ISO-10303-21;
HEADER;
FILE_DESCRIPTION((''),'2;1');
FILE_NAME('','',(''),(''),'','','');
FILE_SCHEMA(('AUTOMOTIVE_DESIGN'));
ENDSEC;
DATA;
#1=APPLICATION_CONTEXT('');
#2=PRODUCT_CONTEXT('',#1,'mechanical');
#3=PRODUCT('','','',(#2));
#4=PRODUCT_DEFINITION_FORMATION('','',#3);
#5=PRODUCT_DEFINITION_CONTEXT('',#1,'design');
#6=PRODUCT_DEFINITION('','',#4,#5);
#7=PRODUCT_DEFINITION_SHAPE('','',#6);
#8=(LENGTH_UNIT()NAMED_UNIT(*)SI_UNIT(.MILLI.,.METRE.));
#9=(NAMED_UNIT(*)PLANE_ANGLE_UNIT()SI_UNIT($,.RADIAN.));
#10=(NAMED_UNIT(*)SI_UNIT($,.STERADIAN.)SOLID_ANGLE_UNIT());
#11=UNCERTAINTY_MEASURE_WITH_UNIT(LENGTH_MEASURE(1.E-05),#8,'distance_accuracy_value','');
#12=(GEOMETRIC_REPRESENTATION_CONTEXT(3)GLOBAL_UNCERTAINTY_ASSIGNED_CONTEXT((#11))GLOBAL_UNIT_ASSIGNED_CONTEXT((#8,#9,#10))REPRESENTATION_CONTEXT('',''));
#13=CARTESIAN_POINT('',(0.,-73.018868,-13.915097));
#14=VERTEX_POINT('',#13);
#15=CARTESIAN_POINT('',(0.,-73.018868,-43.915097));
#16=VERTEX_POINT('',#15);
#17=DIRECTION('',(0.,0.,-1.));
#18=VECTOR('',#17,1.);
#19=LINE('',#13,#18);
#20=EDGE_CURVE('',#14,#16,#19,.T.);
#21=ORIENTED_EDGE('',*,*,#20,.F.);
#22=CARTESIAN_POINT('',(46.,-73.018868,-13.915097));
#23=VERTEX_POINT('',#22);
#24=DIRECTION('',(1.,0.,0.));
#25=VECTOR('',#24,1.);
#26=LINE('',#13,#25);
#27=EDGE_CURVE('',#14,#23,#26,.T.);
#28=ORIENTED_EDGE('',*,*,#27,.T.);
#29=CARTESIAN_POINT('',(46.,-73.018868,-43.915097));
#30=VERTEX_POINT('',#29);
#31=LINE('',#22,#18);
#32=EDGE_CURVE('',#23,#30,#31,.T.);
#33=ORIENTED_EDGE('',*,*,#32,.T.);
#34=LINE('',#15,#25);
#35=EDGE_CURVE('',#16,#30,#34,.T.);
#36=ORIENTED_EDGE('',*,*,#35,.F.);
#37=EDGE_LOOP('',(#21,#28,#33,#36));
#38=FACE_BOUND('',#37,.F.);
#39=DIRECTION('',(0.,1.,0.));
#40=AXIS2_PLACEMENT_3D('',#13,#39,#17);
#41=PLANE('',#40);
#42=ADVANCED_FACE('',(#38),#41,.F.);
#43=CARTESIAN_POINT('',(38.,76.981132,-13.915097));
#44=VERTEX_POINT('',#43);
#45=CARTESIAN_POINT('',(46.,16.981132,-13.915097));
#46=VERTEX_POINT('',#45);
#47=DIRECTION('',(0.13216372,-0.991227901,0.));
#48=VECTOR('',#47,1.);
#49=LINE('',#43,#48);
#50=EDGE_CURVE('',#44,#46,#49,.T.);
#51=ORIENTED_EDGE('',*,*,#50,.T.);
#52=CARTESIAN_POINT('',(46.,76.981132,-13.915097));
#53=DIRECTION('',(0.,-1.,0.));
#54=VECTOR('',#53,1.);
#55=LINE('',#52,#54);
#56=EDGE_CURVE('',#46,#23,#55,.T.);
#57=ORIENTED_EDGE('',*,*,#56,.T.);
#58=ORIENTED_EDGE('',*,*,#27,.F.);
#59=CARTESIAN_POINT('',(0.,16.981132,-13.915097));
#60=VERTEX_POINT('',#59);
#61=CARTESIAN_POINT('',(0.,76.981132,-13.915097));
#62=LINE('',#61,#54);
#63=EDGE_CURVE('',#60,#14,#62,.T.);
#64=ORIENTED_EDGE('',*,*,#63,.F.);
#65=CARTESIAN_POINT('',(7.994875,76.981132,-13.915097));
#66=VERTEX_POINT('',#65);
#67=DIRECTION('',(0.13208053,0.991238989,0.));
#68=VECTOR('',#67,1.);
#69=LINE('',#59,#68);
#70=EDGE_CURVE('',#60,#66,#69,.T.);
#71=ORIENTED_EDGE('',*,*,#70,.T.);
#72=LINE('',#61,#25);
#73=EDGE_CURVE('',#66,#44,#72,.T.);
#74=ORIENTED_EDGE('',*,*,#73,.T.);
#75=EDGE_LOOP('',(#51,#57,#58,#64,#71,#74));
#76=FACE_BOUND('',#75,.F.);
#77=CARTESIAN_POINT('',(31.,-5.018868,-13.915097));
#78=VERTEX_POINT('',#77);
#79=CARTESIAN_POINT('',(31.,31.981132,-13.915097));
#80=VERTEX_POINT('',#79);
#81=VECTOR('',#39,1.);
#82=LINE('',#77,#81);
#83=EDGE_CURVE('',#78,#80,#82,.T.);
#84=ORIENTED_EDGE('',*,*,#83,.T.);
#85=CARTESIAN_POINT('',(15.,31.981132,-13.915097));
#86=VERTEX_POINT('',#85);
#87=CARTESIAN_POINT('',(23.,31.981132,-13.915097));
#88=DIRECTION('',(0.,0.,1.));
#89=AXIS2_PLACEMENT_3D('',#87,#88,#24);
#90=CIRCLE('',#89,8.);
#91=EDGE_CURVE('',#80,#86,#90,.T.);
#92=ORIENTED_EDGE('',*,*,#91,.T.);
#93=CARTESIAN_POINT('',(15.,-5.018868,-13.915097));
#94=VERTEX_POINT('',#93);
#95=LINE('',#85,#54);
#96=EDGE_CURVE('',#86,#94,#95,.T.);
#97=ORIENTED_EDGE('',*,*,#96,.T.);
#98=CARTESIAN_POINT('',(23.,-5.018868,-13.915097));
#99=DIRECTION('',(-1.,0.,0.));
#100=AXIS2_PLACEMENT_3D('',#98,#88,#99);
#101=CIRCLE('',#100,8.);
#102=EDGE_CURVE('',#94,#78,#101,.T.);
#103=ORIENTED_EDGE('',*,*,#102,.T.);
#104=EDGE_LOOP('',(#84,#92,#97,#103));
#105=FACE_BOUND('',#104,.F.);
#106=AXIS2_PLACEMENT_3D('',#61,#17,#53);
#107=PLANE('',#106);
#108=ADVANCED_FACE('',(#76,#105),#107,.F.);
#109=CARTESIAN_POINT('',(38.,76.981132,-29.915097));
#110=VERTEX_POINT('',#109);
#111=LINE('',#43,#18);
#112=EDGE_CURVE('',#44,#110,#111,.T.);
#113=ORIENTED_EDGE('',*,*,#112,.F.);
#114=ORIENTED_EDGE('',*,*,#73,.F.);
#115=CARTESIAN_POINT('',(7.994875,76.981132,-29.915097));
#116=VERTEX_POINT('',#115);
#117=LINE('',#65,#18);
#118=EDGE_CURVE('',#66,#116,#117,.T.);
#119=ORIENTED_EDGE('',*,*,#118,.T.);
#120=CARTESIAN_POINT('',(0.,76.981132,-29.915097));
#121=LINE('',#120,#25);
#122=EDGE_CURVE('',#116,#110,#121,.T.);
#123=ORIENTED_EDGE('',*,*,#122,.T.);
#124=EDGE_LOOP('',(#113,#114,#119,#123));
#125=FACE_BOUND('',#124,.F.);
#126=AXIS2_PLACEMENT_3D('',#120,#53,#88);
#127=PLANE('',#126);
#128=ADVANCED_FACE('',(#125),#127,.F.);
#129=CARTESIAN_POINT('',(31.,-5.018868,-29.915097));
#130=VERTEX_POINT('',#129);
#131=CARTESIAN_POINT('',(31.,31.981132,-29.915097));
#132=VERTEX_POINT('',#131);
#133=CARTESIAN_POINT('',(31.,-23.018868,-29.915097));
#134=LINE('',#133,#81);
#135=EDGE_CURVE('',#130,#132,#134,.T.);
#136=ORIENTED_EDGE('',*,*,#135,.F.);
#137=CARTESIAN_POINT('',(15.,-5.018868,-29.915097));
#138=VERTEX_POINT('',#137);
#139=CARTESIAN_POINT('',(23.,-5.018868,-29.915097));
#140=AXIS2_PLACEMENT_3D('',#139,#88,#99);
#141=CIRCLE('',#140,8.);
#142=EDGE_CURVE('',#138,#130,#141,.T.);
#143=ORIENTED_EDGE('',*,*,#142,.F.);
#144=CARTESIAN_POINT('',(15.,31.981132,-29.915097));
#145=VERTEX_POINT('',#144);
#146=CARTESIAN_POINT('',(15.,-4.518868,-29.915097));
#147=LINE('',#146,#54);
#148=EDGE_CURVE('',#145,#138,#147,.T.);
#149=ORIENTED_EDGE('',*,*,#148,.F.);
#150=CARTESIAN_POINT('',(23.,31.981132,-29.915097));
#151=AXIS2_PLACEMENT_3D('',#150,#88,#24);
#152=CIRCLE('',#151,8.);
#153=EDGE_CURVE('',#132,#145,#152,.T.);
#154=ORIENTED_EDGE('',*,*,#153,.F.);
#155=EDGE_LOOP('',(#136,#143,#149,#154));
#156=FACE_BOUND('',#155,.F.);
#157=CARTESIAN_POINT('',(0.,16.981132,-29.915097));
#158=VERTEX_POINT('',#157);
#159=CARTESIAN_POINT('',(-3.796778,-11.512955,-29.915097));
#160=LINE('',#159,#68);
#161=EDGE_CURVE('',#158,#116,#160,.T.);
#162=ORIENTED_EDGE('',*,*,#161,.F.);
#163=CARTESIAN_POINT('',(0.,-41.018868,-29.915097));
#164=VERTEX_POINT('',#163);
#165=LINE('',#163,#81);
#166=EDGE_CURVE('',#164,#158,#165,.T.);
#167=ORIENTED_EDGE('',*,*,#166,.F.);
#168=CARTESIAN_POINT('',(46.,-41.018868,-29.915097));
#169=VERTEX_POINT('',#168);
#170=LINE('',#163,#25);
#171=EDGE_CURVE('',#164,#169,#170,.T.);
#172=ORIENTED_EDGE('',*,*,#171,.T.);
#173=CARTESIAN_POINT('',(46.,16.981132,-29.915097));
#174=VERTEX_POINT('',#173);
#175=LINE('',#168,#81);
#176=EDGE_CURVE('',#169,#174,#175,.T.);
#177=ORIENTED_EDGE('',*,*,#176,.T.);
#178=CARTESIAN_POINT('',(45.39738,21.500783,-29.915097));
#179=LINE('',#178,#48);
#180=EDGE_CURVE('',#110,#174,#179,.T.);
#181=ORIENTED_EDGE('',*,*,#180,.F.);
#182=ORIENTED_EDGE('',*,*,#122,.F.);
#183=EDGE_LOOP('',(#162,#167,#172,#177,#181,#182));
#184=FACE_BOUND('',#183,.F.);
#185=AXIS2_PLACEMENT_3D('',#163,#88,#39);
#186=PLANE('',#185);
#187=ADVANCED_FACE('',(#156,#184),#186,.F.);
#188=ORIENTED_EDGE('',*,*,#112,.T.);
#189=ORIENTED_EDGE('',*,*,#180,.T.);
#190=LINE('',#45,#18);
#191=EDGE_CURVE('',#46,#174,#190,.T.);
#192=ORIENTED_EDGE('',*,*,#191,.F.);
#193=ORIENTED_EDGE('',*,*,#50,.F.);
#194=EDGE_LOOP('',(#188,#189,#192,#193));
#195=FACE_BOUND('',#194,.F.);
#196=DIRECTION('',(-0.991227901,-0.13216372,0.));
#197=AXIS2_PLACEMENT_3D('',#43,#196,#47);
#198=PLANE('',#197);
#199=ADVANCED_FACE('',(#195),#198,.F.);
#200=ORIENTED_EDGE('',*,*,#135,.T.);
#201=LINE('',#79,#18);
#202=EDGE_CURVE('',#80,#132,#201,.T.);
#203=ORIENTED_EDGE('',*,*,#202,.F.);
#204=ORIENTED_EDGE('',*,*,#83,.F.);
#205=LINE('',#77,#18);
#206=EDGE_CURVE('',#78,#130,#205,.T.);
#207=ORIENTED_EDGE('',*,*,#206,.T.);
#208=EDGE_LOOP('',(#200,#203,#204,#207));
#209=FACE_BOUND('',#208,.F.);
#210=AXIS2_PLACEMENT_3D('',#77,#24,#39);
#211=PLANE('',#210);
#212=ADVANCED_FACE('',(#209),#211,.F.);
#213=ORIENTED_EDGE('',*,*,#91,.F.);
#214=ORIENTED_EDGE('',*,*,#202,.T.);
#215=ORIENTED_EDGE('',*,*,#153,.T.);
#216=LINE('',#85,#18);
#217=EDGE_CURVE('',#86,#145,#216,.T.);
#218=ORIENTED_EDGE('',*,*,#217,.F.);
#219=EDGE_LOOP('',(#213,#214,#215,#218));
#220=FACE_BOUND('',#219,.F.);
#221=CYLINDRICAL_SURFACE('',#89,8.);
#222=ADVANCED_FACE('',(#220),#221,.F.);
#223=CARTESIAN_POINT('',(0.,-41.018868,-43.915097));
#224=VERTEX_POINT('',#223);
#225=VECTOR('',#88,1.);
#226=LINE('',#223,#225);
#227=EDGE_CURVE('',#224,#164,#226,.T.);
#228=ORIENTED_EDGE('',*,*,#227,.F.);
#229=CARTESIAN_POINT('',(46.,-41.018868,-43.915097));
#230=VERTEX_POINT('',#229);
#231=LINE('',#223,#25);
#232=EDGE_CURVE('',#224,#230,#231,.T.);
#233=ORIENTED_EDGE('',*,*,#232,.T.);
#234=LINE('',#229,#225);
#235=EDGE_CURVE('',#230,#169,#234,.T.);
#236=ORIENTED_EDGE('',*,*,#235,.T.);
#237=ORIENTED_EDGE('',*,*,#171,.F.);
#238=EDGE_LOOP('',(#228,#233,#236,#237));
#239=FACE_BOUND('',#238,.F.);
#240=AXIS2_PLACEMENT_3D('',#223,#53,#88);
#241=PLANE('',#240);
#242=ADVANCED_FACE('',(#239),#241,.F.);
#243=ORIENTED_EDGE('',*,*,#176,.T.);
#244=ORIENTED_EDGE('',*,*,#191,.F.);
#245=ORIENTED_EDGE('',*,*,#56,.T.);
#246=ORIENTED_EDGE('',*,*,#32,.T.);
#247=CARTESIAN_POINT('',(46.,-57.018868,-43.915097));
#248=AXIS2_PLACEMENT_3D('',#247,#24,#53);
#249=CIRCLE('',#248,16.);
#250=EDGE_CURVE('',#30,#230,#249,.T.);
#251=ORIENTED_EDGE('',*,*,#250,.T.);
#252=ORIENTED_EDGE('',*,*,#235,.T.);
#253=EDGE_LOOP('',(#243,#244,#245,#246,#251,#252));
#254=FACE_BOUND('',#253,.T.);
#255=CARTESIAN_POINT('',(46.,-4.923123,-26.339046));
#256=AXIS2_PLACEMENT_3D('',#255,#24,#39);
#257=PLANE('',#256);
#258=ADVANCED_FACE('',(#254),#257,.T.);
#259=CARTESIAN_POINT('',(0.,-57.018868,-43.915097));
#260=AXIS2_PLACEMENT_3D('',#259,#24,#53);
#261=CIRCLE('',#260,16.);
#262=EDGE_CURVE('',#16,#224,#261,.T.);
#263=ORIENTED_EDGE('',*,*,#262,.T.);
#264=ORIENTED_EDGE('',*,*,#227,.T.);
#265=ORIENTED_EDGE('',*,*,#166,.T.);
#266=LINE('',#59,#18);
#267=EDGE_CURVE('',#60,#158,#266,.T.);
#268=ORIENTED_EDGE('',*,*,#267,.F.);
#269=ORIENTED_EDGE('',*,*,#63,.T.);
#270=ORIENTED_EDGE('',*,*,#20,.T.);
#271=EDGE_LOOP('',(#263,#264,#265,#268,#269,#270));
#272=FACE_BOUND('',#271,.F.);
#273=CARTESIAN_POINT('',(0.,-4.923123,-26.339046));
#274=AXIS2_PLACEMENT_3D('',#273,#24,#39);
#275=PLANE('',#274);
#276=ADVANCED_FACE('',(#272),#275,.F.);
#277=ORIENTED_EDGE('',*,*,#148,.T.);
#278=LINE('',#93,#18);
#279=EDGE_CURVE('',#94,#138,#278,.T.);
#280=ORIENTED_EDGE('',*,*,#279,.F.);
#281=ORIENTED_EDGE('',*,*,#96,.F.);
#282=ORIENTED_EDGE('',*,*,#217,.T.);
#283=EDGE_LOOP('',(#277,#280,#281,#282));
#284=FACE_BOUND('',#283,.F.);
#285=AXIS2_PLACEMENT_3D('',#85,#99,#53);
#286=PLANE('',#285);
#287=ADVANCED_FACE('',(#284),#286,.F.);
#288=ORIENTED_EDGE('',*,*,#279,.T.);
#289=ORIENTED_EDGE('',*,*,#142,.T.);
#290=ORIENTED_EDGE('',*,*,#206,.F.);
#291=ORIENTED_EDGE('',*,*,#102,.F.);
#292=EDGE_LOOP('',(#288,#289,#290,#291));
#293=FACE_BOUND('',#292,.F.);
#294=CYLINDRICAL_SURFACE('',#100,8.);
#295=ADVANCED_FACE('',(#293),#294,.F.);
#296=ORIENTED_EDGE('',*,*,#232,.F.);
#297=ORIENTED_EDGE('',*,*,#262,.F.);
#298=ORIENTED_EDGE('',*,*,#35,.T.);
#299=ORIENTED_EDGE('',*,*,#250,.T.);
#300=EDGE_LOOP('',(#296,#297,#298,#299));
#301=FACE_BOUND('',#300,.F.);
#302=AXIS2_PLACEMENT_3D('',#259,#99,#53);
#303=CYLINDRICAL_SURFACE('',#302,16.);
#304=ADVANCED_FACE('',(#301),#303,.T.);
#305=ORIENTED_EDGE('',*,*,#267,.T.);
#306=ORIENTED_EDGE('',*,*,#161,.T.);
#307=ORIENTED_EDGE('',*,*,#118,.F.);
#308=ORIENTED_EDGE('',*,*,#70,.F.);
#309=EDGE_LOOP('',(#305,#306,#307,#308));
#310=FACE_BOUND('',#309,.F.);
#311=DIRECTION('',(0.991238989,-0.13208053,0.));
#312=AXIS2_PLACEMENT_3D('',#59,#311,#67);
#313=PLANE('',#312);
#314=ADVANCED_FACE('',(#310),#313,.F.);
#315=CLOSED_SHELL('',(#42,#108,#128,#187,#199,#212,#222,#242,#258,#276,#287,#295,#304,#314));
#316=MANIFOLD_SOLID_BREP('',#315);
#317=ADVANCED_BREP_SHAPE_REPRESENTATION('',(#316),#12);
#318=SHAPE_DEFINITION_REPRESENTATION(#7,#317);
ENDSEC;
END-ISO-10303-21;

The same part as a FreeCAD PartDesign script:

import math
import FreeCAD as App
import Part
import Sketcher

V = App.Vector
Q = App.Units.Quantity

doc = App.newDocument("Part")
body = doc.addObject("PartDesign::Body", "Body")

# Sketch on YZ plane
sketch1 = doc.addObject("Sketcher::SketchObject", "Sketch")
body.addObject(sketch1)
sketch1.AttachmentSupport = (doc.YZ_Plane, [""])
sketch1.MapMode = "FlatFace"
sketch1.addGeometry([
    Part.LineSegment(V(77, -30, 0), V(77, -14, 0)),  # 0
    Part.LineSegment(V(77, -14, 0), V(-73, -14, 0)),  # 1
    Part.LineSegment(V(-73, -14, 0), V(-73, -44, 0)),  # 2
    Part.ArcOfCircle(Part.Circle(V(-57, -44, 0), V(0, 0, 1), 16), math.radians(180), math.radians(360)),  # 3
    Part.LineSegment(V(-41, -44, 0), V(-41, -30, 0)),  # 4
    Part.LineSegment(V(-41, -30, 0), V(77, -30, 0)),  # 5
], False)
sketch1.addConstraint([
    Sketcher.Constraint("Coincident", 0, 2, 1, 1),
    Sketcher.Constraint("Coincident", 1, 2, 2, 1),
    Sketcher.Constraint("Tangent", 2, 2, 3, 1),
    Sketcher.Constraint("Tangent", 3, 2, 4, 1),
    Sketcher.Constraint("Coincident", 4, 2, 5, 1),
    Sketcher.Constraint("Coincident", 5, 2, 0, 1),
    Sketcher.Constraint("Vertical", 0),
    Sketcher.Constraint("Horizontal", 1),
    Sketcher.Constraint("Vertical", 2),
    Sketcher.Constraint("Vertical", 4),
    Sketcher.Constraint("Horizontal", 5),
    Sketcher.Constraint("Radius", 3, Q("16 mm")),
    Sketcher.Constraint("DistanceX", 1, 2, 1, 1, Q("150 mm")),
    Sketcher.Constraint("DistanceY", 0, 1, 0, 2, Q("16 mm")),
    Sketcher.Constraint("DistanceY", 2, 2, 2, 1, Q("30 mm")),
    Sketcher.Constraint("DistanceX", 3, 3, -1, 1, Q("57.018868 mm")),
    Sketcher.Constraint("DistanceY", 3, 3, -1, 1, Q("43.915097 mm")),
])
pad1 = doc.addObject("PartDesign::Pad", "Pad")
body.addObject(pad1)
pad1.Profile = sketch1
pad1.Length = 46

# Sketch on XY plane
sketch2 = doc.addObject("Sketcher::SketchObject", "Sketch001")
body.addObject(sketch2)
sketch2.AttachmentSupport = (doc.XY_Plane, [""])
sketch2.MapMode = "FlatFace"
sketch2.AttachmentOffset = App.Placement(V(0, 0, -13.915097), App.Rotation())
sketch2.addGeometry([
    Part.LineSegment(V(46, 77, 0), V(38, 77, 0)),  # 0
    Part.LineSegment(V(38, 77, 0), V(46, 17, 0)),  # 1
    Part.LineSegment(V(46, 17, 0), V(46, 77, 0)),  # 2
    Part.LineSegment(V(0, 17, 0), V(8, 77, 0)),  # 3
    Part.LineSegment(V(8, 77, 0), V(0, 77, 0)),  # 4
    Part.LineSegment(V(0, 77, 0), V(0, 17, 0)),  # 5
], False)
sketch2.addConstraint([
    Sketcher.Constraint("Coincident", 0, 2, 1, 1),
    Sketcher.Constraint("Coincident", 1, 2, 2, 1),
    Sketcher.Constraint("Coincident", 2, 2, 0, 1),
    Sketcher.Constraint("Coincident", 3, 2, 4, 1),
    Sketcher.Constraint("Coincident", 4, 2, 5, 1),
    Sketcher.Constraint("Coincident", 5, 2, 3, 1),
    Sketcher.Constraint("Horizontal", 0),
    Sketcher.Constraint("Vertical", 2),
    Sketcher.Constraint("Horizontal", 4),
    Sketcher.Constraint("Vertical", 5),
    Sketcher.Constraint("PointOnObject", 4, 2, -2),
    Sketcher.Constraint("Horizontal", 2, 2, 3, 2),
    Sketcher.Constraint("Horizontal", 1, 2, 5, 2),
    Sketcher.Constraint("DistanceX", 0, 2, 0, 1, Q("8 mm")),
    Sketcher.Constraint("DistanceY", 2, 1, 2, 2, Q("60 mm")),
    Sketcher.Constraint("DistanceX", -1, 1, 0, 2, Q("38 mm")),
    Sketcher.Constraint("DistanceX", 4, 2, 4, 1, Q("7.994875 mm")),
    Sketcher.Constraint("DistanceY", -1, 1, 1, 2, Q("16.981132 mm")),
])
pocket1 = doc.addObject("PartDesign::Pocket", "Pocket")
body.addObject(pocket1)
pocket1.Profile = sketch2
pocket1.Length = 25

# Sketch on XY plane
sketch3 = doc.addObject("Sketcher::SketchObject", "Sketch002")
body.addObject(sketch3)
sketch3.AttachmentSupport = (doc.XY_Plane, [""])
sketch3.MapMode = "FlatFace"
sketch3.AttachmentOffset = App.Placement(V(0, 0, -13.915097), App.Rotation())
sketch3.addGeometry([
    Part.ArcOfCircle(Part.Circle(V(23, 32, 0), V(0, 0, 1), 8), math.radians(0), math.radians(180)),
    Part.LineSegment(V(15, 32, 0), V(15, -5, 0)),
    Part.ArcOfCircle(Part.Circle(V(23, -5, 0), V(0, 0, 1), 8), math.radians(180), math.radians(360)),
    Part.LineSegment(V(31, -5, 0), V(31, 32, 0)),
], False)
sketch3.addConstraint([
    Sketcher.Constraint("Tangent", 0, 2, 1, 1),
    Sketcher.Constraint("Tangent", 1, 2, 2, 1),
    Sketcher.Constraint("Tangent", 2, 2, 3, 1),
    Sketcher.Constraint("Tangent", 3, 2, 0, 1),
    Sketcher.Constraint("Vertical", 1),
    Sketcher.Constraint("Vertical", 3),
    Sketcher.Constraint("Radius", 0, Q("8 mm")),
    Sketcher.Constraint("DistanceY", 1, 2, 1, 1, Q("37 mm")),
    Sketcher.Constraint("DistanceX", -1, 1, 0, 3, Q("23 mm")),
    Sketcher.Constraint("DistanceY", -1, 1, 0, 3, Q("31.981132 mm")),
])
pocket2 = doc.addObject("PartDesign::Pocket", "Pocket001")
body.addObject(pocket2)
pocket2.Profile = sketch3
pocket2.Length = 25

doc.recompute()
